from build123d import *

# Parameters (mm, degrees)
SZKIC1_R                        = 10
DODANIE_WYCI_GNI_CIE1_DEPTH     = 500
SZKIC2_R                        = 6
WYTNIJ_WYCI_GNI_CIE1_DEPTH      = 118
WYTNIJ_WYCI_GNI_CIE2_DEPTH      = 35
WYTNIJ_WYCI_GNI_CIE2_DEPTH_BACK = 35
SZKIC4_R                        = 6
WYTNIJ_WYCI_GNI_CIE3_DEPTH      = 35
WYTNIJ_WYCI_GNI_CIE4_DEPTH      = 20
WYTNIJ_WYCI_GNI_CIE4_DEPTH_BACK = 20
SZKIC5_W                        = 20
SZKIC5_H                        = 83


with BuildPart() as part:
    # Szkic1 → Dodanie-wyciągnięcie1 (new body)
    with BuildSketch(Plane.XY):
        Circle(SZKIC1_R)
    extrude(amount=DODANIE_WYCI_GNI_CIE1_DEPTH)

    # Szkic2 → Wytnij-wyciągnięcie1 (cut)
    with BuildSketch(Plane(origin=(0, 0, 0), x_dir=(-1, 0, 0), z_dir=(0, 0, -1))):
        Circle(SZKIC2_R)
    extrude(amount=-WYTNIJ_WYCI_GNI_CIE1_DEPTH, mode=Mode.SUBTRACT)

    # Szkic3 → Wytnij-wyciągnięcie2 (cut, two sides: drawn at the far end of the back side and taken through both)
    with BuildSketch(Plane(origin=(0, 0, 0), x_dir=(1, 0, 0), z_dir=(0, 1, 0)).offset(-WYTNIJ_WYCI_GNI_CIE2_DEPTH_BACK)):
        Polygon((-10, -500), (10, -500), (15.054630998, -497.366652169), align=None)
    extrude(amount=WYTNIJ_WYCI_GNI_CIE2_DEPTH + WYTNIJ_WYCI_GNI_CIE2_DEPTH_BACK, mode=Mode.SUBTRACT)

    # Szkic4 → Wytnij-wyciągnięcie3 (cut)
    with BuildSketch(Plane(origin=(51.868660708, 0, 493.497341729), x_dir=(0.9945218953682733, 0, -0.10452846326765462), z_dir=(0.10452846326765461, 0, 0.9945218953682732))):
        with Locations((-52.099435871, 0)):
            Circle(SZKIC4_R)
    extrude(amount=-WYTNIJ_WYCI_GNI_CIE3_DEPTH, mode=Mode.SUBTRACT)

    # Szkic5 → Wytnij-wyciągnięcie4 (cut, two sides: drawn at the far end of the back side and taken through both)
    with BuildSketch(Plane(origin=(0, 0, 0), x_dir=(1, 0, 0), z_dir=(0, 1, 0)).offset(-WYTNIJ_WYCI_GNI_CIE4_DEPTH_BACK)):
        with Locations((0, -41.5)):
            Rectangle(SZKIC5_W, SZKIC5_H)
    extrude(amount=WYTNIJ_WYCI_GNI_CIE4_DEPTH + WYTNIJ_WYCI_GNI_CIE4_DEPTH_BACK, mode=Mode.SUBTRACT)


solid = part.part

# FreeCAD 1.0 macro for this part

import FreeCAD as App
import Part
import Sketcher
Q = App.Units.Quantity


def add_polygon(sketch, points):
    """Adds a closed chain of lines whose ends are joined by coincident constraints."""
    first, n = sketch.GeometryCount, len(points)
    for a, b in zip(points, points[1:] + points[:1]):
        sketch.addGeometry(Part.LineSegment(App.Vector(*a, 0), App.Vector(*b, 0)), False)
    for i in range(n):
        sketch.addConstraint(Sketcher.Constraint("Coincident", first + i, 2, first + (i + 1) % n, 1))

doc = App.newDocument("Part")
params = doc.addObject("Spreadsheet::Sheet", "Params")
for row, (alias, value) in enumerate([
    ("sketch1_diameter", "20 mm"),
    ("pad1_length", "500 mm"),
    ("sketch2_diameter", "12 mm"),
    ("pocket1_length", "118 mm"),
    ("sketch3_width", "20 mm"),
    ("sketch4_diameter", "12 mm"),
    ("pocket3_length", "35 mm"),
    ("sketch5_width", "20 mm"),
    ("sketch5_height", "83 mm"),
], start=1):
    params.set(f"A{row}", alias)
    params.set(f"B{row}", "=" + value)
    params.setAlias(f"B{row}", alias)

body = doc.addObject("PartDesign::Body", "Body")

sketch1 = body.newObject("Sketcher::SketchObject", "Sketch")
sketch1.AttachmentSupport = (doc.getObject("XY_Plane"), [""])
sketch1.MapMode = "FlatFace"
sketch1.addGeometry(Part.Circle(App.Vector(0, 0, 0), App.Vector(0, 0, 1), 10), False)
sketch1.addConstraint([
    Sketcher.Constraint("Coincident", 0, 3, -1, 1),
    Sketcher.Constraint("Diameter", 0, 20.0),
])
sketch1.setExpression("Constraints[1]", "Params.sketch1_diameter")
pad1 = body.newObject("PartDesign::Pad", "Pad")
pad1.Profile = sketch1
pad1.setExpression("Length", "Params.pad1_length")

sketch2 = body.newObject("Sketcher::SketchObject", "Sketch001")
sketch2.AttachmentSupport = (doc.getObject("XY_Plane"), [""])
sketch2.MapMode = "FlatFace"
sketch2.addGeometry(Part.Circle(App.Vector(0, 0, 0), App.Vector(0, 0, 1), 6), False)
sketch2.addConstraint([
    Sketcher.Constraint("Coincident", 0, 3, -1, 1),
    Sketcher.Constraint("Diameter", 0, 12.0),
])
sketch2.setExpression("Constraints[1]", "Params.sketch2_diameter")
pocket1 = body.newObject("PartDesign::Pocket", "Pocket")
pocket1.Profile = sketch2
pocket1.setExpression("Length", "Params.pocket1_length")
pocket1.Reversed = True

sketch3 = body.newObject("Sketcher::SketchObject", "Sketch002")
sketch3.AttachmentSupport = (doc.getObject("XZ_Plane"), [""])
sketch3.MapMode = "FlatFace"
add_polygon(sketch3, [(-10, 500), (10, 500), (15.054631, 497.366652)])
sketch3.addConstraint([
    Sketcher.Constraint("Horizontal", 0),
    Sketcher.Constraint("DistanceX", 0, 1, 0, 2, 20.0),
    Sketcher.Constraint("Angle", 2, Q("174 deg")),
    Sketcher.Constraint("DistanceX", -1, 1, 0, 2, 10.0),
    Sketcher.Constraint("DistanceY", -1, 1, 0, 2, 500.0),
    Sketcher.Constraint("Distance", 2, 25.192639),
])
sketch3.setExpression("Constraints[4]", "Params.sketch3_width")
pocket2 = body.newObject("PartDesign::Pocket", "Pocket001")
pocket2.Profile = sketch3
pocket2.Type = "ThroughAll"
pocket2.Midplane = True

sketch4 = body.newObject("Sketcher::SketchObject", "Sketch003")
sketch4.Placement = App.Placement(App.Vector(51.868661, 0, 493.497342), App.Rotation(App.Vector(0.994521895, 0, -0.104528463), App.Vector(0, 0.999999999, 0), App.Vector(0.104528463, 0, 0.994521895), "ZXY"))
sketch4.addGeometry(Part.Circle(App.Vector(-52.099436, 0, 0), App.Vector(0, 0, 1), 6), False)
sketch4.addConstraint([
    Sketcher.Constraint("PointOnObject", 0, 3, -1),
    Sketcher.Constraint("Diameter", 0, 12.0),
    Sketcher.Constraint("DistanceX", 0, 3, -1, 1, 52.099436),
])
sketch4.setExpression("Constraints[1]", "Params.sketch4_diameter")
pocket3 = body.newObject("PartDesign::Pocket", "Pocket002")
pocket3.Profile = sketch4
pocket3.setExpression("Length", "Params.pocket3_length")

sketch5 = body.newObject("Sketcher::SketchObject", "Sketch004")
sketch5.AttachmentSupport = (doc.getObject("XZ_Plane"), [""])
sketch5.MapMode = "FlatFace"
add_polygon(sketch5, [(-10, 0), (-10, 83), (10, 83), (10, 0)])
sketch5.addConstraint([
    Sketcher.Constraint("Vertical", 0),
    Sketcher.Constraint("Horizontal", 1),
    Sketcher.Constraint("Vertical", 2),
    Sketcher.Constraint("Horizontal", 3),
    Sketcher.Constraint("Symmetric", 2, 2, 3, 2, -1, 1),
    Sketcher.Constraint("DistanceX", 1, 1, 1, 2, 20.0),
    Sketcher.Constraint("DistanceY", 0, 1, 0, 2, 83.0),
])
sketch5.setExpression("Constraints[9]", "Params.sketch5_width")
sketch5.setExpression("Constraints[10]", "Params.sketch5_height")
pocket4 = body.newObject("PartDesign::Pocket", "Pocket003")
pocket4.Profile = sketch5
pocket4.Type = "ThroughAll"
pocket4.Midplane = True

doc.recompute()
